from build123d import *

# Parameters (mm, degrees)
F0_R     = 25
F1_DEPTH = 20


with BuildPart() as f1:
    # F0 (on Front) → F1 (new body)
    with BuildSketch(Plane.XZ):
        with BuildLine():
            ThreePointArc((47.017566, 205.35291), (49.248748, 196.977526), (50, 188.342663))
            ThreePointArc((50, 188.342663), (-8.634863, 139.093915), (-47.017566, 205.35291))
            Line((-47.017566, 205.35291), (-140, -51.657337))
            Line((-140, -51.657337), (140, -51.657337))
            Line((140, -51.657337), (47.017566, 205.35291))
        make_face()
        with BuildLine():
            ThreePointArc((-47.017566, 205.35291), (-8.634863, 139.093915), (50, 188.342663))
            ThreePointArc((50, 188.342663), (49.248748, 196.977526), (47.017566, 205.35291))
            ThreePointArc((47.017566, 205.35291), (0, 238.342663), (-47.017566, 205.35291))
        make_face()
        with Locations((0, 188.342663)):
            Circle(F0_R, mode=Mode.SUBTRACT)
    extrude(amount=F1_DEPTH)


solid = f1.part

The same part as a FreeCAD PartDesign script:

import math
import FreeCAD as App
import Part
import Sketcher
from FreeCAD import Vector

doc = App.newDocument("Part")
body = doc.addObject("PartDesign::Body", "Body")

# Sketch on XZ plane
sketch1 = body.newObject("Sketcher::SketchObject", "Sketch")
sketch1.AttachmentSupport = (doc.getObject("XZ_Plane"), [""])
sketch1.MapMode = "FlatFace"
sketch1.addGeometry([
    Part.LineSegment(Vector(-47.017566, 205.35291, 0), Vector(-140, -51.657337, 0)),  # 0
    Part.LineSegment(Vector(-140, -51.657337, 0), Vector(140, -51.657337, 0)),  # 1
    Part.LineSegment(Vector(140, -51.657337, 0), Vector(47.017566, 205.35291, 0)),  # 2
    Part.ArcOfCircle(Part.Circle(Vector(0, 188.342663, 0), Vector(0, 0, 1), 50), math.radians(19.889361), math.radians(160.110639)),  # 3
    Part.Circle(Vector(0, 188.342663, 0), Vector(0, 0, 1), 25),  # 4
], False)
sketch1.addConstraint([
    Sketcher.Constraint("Coincident", 0, 2, 1, 1),
    Sketcher.Constraint("Coincident", 1, 2, 2, 1),
    Sketcher.Constraint("Tangent", 2, 2, 3, 1),
    Sketcher.Constraint("Tangent", 3, 2, 0, 1),
    Sketcher.Constraint("Horizontal", 1),
    Sketcher.Constraint("Coincident", 4, 3, 3, 3),
    Sketcher.Constraint("Symmetric", 2, 2, 3, 2, -2),
    Sketcher.Constraint("Diameter", 4, 50.0),
    Sketcher.Constraint("Radius", 3, 50.0),
    Sketcher.Constraint("DistanceX", 1, 1, 1, 2, 280.0),
    Sketcher.Constraint("DistanceY", 0, 2, 3, 3, 240.0),
    Sketcher.Constraint("DistanceY", -1, 1, 2, 2, 205.35291),
])
pad1 = body.newObject("PartDesign::Pad", "Pad")
pad1.Profile = sketch1
pad1.Length = 20

doc.recompute()
